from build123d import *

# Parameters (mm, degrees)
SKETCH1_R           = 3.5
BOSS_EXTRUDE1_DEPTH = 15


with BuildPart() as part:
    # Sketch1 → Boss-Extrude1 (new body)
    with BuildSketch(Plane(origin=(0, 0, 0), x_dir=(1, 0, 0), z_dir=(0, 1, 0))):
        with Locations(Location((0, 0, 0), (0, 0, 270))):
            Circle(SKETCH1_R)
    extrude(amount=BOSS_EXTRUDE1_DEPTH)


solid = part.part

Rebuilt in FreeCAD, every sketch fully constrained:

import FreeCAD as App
import Part
import Sketcher

V = App.Vector
Q = App.Units.Quantity

doc = App.newDocument("Part")
body = doc.addObject("PartDesign::Body", "Body")

# Sketch on XZ plane
sketch1 = body.newObject("Sketcher::SketchObject", "Sketch")
sketch1.AttachmentSupport = (doc.getObject("XZ_Plane"), [""])
sketch1.MapMode = "FlatFace"
sketch1.addGeometry(Part.Circle(V(0, 0, 0), V(0, 0, 1), 3.5), False)
sketch1.addConstraint([
    Sketcher.Constraint("Coincident", 0, 3, -1, 1),
    Sketcher.Constraint("Diameter", 0, Q("7 mm")),
])
pad1 = body.newObject("PartDesign::Pad", "Pad")
pad1.Profile = sketch1
pad1.Length = 15
pad1.Reversed = True

doc.recompute()
